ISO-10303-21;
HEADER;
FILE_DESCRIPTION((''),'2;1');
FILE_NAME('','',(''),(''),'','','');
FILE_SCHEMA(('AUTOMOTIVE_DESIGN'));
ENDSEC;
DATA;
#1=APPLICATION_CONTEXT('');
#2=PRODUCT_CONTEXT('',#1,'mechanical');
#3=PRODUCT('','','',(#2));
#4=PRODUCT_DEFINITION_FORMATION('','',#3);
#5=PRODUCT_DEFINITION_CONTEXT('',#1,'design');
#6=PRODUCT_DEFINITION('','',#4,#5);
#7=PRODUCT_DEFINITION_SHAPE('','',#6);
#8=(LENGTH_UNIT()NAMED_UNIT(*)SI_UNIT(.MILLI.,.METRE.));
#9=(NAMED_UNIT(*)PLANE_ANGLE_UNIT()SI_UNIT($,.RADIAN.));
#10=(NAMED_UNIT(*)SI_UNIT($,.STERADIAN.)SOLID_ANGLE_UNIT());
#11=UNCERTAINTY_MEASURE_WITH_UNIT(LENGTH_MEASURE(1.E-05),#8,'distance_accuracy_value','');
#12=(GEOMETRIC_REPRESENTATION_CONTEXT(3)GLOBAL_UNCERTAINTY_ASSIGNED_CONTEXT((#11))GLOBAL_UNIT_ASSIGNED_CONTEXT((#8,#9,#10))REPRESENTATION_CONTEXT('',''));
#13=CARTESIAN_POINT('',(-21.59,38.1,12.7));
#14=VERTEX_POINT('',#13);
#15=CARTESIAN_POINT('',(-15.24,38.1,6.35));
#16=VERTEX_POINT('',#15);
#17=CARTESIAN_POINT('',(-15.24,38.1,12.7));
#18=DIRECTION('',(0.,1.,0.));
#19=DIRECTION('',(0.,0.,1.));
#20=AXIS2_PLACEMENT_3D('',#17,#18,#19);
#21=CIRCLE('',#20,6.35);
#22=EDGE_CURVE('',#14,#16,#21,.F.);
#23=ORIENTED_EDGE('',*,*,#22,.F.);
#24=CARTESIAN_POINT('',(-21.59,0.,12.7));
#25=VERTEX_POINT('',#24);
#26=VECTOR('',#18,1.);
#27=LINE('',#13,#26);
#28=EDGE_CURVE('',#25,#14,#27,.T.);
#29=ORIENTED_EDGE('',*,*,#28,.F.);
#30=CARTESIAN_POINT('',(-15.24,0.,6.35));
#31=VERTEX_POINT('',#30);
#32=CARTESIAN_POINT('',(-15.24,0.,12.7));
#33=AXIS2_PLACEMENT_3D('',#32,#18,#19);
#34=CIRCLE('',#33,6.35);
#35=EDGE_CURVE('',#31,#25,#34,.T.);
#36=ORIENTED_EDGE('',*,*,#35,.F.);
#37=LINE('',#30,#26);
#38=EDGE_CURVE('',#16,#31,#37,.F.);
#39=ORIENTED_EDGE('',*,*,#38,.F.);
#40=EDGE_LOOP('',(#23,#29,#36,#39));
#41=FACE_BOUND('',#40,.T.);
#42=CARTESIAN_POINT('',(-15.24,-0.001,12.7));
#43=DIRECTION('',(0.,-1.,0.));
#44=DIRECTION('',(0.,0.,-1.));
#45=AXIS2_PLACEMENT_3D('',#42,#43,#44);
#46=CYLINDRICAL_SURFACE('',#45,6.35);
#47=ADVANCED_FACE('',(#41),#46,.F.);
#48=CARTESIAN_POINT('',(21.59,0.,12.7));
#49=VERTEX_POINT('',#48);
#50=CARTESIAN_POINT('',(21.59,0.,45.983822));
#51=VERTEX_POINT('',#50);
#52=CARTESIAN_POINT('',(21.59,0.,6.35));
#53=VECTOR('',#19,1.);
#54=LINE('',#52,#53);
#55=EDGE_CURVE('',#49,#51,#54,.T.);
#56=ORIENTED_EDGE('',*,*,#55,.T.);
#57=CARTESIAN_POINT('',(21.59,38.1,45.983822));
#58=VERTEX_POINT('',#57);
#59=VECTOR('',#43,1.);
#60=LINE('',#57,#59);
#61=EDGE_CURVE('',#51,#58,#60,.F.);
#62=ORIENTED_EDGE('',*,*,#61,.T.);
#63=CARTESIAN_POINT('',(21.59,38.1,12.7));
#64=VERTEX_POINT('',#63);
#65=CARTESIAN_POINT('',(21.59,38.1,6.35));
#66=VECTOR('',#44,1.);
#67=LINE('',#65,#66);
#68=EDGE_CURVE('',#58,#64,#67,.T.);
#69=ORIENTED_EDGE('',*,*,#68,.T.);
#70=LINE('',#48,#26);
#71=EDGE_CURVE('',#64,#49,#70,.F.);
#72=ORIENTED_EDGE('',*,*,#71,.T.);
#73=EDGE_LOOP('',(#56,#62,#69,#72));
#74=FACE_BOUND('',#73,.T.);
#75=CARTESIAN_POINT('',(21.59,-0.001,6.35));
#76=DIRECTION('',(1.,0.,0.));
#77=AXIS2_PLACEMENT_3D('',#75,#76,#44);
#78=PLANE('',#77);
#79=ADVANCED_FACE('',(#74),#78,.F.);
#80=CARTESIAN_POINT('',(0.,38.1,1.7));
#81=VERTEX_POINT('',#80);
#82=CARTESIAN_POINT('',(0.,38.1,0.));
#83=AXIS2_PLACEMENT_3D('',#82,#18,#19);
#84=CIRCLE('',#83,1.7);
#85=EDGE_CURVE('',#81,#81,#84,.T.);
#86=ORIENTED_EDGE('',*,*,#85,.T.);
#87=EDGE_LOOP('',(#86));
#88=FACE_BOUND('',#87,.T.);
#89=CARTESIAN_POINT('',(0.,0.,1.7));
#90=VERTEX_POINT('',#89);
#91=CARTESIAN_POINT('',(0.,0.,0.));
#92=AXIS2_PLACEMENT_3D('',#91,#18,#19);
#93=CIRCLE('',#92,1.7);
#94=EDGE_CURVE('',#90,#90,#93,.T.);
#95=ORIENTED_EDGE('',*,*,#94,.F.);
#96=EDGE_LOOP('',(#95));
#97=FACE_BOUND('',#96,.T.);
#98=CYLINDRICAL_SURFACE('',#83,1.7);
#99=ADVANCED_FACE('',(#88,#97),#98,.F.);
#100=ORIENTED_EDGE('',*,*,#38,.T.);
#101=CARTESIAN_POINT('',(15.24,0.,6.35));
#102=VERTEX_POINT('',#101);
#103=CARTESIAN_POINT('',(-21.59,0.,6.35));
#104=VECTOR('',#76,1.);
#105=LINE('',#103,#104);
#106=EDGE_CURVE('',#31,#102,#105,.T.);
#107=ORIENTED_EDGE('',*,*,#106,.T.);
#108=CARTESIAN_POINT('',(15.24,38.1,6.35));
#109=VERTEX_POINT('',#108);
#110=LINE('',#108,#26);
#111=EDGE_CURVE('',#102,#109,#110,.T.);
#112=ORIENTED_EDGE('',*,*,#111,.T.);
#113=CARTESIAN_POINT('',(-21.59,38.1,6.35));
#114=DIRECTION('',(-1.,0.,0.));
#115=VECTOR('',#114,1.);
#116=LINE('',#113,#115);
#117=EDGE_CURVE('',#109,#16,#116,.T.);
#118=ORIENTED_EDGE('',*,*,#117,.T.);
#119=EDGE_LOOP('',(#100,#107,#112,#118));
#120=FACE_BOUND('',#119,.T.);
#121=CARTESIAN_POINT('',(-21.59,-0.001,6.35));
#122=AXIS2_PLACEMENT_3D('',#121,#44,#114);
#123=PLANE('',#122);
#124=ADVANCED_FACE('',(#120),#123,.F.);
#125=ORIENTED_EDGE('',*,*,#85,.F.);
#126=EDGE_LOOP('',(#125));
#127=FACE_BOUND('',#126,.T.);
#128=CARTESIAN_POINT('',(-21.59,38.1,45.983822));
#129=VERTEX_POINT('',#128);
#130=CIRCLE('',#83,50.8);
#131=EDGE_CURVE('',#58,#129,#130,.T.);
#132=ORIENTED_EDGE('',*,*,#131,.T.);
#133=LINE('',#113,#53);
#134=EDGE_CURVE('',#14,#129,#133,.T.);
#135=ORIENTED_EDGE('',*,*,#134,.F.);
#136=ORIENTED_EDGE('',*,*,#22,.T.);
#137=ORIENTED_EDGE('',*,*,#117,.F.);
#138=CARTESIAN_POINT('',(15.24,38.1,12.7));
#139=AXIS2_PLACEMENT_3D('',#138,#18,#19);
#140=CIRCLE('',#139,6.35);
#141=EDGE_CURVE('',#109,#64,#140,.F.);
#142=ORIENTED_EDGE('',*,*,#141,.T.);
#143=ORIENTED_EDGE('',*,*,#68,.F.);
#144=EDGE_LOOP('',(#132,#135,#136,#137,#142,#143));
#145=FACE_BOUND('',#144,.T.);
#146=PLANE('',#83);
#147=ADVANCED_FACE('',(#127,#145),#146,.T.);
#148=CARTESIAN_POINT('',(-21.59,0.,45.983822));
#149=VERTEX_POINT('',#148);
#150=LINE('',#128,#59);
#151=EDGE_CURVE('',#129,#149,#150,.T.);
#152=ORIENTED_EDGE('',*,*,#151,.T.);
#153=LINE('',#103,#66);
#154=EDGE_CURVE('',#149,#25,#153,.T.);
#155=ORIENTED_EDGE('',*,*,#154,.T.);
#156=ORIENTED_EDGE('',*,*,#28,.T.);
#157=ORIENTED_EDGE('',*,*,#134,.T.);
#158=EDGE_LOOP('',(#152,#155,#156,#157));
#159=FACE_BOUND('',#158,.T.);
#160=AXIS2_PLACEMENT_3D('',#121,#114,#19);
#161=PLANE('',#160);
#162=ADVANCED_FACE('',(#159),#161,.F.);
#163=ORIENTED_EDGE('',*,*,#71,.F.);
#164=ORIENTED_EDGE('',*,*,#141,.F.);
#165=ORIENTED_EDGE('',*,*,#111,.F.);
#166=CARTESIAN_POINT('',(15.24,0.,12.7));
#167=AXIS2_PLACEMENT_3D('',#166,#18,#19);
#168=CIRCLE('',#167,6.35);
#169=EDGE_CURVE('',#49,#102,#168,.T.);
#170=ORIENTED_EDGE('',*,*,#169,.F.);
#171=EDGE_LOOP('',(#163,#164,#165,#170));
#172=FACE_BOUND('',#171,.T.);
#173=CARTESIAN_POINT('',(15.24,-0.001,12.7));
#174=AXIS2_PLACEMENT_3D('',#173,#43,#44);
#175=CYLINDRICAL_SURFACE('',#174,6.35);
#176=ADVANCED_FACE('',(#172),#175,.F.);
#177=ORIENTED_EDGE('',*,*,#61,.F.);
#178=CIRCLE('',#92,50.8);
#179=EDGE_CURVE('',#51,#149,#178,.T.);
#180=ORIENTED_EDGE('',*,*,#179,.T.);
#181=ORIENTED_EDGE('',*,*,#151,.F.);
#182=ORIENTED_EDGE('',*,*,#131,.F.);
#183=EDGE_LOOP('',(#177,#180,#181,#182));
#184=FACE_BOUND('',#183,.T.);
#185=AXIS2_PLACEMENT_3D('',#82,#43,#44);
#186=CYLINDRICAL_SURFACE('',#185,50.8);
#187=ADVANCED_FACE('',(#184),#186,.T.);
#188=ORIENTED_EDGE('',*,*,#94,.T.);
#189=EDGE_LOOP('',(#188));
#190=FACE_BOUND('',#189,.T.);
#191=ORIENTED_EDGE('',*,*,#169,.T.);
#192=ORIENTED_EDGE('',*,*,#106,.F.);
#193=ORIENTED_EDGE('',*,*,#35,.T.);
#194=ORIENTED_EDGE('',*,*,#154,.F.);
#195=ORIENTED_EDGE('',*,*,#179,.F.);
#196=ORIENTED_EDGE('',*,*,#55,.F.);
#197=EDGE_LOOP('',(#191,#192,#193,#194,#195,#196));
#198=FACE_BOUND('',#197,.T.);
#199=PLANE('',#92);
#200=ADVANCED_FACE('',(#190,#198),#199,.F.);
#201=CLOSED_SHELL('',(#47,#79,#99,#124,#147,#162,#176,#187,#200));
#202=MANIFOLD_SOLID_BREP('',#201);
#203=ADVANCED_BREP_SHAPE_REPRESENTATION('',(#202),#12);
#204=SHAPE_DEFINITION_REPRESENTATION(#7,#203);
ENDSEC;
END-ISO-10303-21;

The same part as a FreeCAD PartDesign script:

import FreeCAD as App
import Part
import Sketcher
Q = App.Units.Quantity


def edges_at(feature, points):
    """Names of the edges that pass closest to the given points."""
    edges = feature.Shape.Edges
    near = lambda p: min(range(len(edges)), key=lambda i: edges[i].distToShape(Part.Vertex(*p))[0])
    return sorted({f"Edge{near(p) + 1}" for p in points})

doc = App.newDocument("Part")
body = doc.addObject("PartDesign::Body", "Body")

sketch1 = doc.addObject("Sketcher::SketchObject", "Sketch")
body.addObject(sketch1)
sketch1.AttachmentSupport = (doc.XZ_Plane, [""])
sketch1.MapMode = "FlatFace"
sketch1.addGeometry(Part.Circle(App.Vector(0, 0, 0), App.Vector(0, 0, 1), 51), False)
sketch1.addConstraint([
    Sketcher.Constraint("Coincident", 0, 3, -1, 1),
    Sketcher.Constraint("Diameter", 0, Q("4 in")),
])
pad1 = doc.addObject("PartDesign::Pad", "Pad")
body.addObject(pad1)
pad1.Profile = sketch1
pad1.Length = Q("1.5 in")
pad1.Reversed = True

sketch2 = doc.addObject("Sketcher::SketchObject", "Sketch001")
body.addObject(sketch2)
sketch2.AttachmentSupport = (doc.XZ_Plane, [""])
sketch2.MapMode = "FlatFace"
sketch2.AttachmentOffset = App.Placement(App.Vector(0, 0, -1.5 * 25.4), App.Rotation())
sketch2.addGeometry([
    Part.LineSegment(App.Vector(-22, 6, 0), App.Vector(-22, 51, 0)),
    Part.LineSegment(App.Vector(-22, 51, 0), App.Vector(22, 51, 0)),
    Part.LineSegment(App.Vector(22, 51, 0), App.Vector(22, 6, 0)),
    Part.LineSegment(App.Vector(22, 6, 0), App.Vector(-22, 6, 0)),
], False)
sketch2.addConstraint([
    Sketcher.Constraint("Coincident", 0, 2, 1, 1),
    Sketcher.Constraint("Coincident", 1, 2, 2, 1),
    Sketcher.Constraint("Coincident", 2, 2, 3, 1),
    Sketcher.Constraint("Coincident", 3, 2, 0, 1),
    Sketcher.Constraint("Vertical", 0),
    Sketcher.Constraint("Horizontal", 1),
    Sketcher.Constraint("Vertical", 2),
    Sketcher.Constraint("Horizontal", 3),
    Sketcher.Constraint("DistanceX", 1, 1, 1, 2, Q("1.7 in")),
    Sketcher.Constraint("DistanceY", -1, 1, 0, 2, Q("2 in")),
    Sketcher.Constraint("DistanceY", 0, 1, 0, 2, Q("1.75 in")),
    Sketcher.Constraint("DistanceX", 0, 2, -1, 1, Q("0.85 in")),
])
pocket1 = doc.addObject("PartDesign::Pocket", "Pocket")
body.addObject(pocket1)
pocket1.Profile = sketch2
pocket1.Type = "UpToFirst"
pocket1.Reversed = True
doc.recompute()

fillet = doc.addObject("PartDesign::Fillet", "Fillet")
body.addObject(fillet)
fillet.Base = (pocket1, edges_at(pocket1, [(-21.59, 19.05, 6.35), (21.59, 19.05, 6.35)]))
fillet.Radius = Q("0.25 in")

sketch3 = doc.addObject("Sketcher::SketchObject", "Sketch002")
body.addObject(sketch3)
sketch3.AttachmentSupport = (doc.XZ_Plane, [""])
sketch3.MapMode = "FlatFace"
sketch3.AttachmentOffset = App.Placement(App.Vector(0, 0, -1.5 * 25.4), App.Rotation())
sketch3.addGeometry(Part.Circle(App.Vector(0, 0, 0), App.Vector(0, 0, 1), 1.7), False)
sketch3.addConstraint([
    Sketcher.Constraint("Coincident", 0, 3, -1, 1),
    Sketcher.Constraint("Diameter", 0, 3.4),
])
doc.recompute()
hole = doc.addObject("PartDesign::Hole", "Hole")
body.addObject(hole)
hole.Profile = sketch3
hole.ThreadType = "None"
hole.Diameter = 3.4
hole.DepthType = "ThroughAll"
hole.Reversed = True

doc.recompute()
